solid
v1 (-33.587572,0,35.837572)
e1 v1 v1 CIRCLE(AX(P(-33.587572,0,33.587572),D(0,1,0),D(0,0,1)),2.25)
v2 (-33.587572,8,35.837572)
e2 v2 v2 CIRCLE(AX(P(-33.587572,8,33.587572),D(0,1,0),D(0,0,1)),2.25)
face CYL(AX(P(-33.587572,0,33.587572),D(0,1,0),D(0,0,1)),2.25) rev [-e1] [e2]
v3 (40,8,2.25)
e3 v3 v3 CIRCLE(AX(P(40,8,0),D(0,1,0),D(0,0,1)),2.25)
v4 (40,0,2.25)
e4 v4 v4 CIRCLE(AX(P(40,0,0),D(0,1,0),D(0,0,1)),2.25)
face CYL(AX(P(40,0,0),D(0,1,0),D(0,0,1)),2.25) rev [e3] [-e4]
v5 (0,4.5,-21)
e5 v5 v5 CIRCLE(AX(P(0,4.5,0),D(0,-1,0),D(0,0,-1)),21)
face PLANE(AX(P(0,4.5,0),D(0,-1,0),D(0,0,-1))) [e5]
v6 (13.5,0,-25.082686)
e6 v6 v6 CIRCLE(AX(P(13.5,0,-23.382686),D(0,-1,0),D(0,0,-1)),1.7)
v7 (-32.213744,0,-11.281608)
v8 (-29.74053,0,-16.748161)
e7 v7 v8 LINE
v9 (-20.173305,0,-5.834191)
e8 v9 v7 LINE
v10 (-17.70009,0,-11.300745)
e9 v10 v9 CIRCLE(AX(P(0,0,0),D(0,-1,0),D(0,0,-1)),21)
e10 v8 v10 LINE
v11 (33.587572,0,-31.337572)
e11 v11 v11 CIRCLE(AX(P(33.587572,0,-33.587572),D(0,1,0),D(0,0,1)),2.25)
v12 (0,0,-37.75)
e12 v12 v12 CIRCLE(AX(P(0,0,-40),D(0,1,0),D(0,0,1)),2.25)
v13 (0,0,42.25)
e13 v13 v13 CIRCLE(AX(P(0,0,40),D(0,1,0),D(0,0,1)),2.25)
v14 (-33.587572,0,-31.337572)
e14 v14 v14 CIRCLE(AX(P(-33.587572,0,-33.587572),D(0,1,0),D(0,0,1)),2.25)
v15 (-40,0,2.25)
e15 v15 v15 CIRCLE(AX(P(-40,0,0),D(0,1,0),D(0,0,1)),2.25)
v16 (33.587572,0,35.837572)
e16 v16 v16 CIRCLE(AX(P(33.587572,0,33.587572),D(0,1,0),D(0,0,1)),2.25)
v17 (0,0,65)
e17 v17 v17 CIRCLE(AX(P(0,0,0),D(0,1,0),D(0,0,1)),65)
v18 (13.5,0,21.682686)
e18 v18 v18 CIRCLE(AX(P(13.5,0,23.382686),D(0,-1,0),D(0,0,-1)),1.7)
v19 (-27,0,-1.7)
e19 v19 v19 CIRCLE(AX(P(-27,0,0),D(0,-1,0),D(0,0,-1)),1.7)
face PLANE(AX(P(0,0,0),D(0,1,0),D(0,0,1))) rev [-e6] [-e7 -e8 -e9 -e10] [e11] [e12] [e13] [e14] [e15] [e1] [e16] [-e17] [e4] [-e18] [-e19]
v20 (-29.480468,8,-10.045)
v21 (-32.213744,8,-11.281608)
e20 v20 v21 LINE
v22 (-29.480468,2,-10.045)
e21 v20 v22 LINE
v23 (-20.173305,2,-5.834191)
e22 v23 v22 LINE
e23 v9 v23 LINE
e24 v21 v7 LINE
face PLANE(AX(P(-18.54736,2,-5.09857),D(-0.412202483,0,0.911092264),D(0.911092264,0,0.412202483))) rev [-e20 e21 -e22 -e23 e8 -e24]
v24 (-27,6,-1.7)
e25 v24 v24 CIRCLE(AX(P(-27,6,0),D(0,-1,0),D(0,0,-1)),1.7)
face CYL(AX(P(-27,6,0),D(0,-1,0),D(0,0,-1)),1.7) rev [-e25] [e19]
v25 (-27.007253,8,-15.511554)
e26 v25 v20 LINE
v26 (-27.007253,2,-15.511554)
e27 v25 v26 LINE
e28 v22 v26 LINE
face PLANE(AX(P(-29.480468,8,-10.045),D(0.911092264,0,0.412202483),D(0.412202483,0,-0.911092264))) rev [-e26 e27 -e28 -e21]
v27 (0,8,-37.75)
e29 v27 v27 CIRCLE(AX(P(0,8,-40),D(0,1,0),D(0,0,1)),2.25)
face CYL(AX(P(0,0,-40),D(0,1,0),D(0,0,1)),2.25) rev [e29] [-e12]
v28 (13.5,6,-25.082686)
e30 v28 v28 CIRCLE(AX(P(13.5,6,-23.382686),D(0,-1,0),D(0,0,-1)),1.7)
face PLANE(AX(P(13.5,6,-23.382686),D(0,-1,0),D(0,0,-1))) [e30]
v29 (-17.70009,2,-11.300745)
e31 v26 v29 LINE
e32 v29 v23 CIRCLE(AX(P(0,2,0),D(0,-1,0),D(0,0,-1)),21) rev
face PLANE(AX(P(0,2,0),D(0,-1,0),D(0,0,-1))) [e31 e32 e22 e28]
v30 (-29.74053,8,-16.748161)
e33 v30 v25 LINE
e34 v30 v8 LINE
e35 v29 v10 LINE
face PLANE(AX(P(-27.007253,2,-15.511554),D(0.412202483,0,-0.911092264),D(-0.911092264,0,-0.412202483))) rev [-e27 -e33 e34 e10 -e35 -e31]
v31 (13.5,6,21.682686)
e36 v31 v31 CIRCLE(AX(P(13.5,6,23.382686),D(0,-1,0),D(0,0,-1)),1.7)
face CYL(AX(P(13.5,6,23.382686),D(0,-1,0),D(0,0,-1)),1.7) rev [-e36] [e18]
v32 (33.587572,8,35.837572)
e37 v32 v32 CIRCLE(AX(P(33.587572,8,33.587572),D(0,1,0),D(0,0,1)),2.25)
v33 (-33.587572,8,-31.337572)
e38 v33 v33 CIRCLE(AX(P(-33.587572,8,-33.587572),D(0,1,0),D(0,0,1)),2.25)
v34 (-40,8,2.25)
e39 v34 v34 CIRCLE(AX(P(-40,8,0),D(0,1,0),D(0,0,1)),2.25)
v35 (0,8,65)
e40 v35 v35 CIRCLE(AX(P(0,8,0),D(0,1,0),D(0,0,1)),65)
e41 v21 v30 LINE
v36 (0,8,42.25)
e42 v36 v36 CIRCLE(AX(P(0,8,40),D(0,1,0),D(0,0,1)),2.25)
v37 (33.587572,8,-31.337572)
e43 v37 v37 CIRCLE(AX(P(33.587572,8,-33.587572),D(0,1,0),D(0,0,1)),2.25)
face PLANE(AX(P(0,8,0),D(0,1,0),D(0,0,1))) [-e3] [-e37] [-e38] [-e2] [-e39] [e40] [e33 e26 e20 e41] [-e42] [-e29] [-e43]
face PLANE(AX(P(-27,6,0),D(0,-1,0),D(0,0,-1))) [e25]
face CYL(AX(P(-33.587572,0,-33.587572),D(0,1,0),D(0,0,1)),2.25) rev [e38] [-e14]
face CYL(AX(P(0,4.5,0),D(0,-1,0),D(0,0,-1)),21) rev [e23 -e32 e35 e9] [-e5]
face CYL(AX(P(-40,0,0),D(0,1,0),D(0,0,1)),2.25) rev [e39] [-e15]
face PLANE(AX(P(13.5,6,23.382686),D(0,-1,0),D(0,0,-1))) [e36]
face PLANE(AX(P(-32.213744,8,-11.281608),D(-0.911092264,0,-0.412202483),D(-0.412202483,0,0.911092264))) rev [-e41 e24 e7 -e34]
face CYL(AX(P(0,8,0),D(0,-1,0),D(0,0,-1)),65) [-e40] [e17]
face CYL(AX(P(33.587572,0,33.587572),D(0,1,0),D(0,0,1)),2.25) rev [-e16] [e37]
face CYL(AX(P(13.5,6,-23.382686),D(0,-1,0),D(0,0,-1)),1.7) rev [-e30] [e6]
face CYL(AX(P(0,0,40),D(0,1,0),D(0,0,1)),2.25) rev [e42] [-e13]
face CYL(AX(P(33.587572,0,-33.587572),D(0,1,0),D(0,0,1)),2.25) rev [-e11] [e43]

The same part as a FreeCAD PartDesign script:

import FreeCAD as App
import Part
import Sketcher

doc = App.newDocument("Part")
params = doc.addObject("Spreadsheet::Sheet", "Params")
for row, (alias, value) in enumerate([
    ("sketch1_diameter", "130 mm"),
    ("pad1_length", "8 mm"),
    ("sketch2_diameter", "42 mm"),
    ("pocket1_length", "4.5 mm"),
    ("sketch3_diameter", "4.5 mm"),
    ("sketch4_diameter", "4.5 mm"),
    ("sketch5_length", "6 mm"),
    ("sketch5_length2", "12 mm"),
    ("pocket4_length", "2 mm"),
    ("sketch6_diameter", "3.4 mm"),
    ("pocket5_length", "6 mm"),
    ("sketch7_length", "3 mm"),
    ("sketch7_length2", "6 mm"),
], start=1):
    params.set(f"A{row}", alias)
    params.set(f"B{row}", "=" + value)
    params.setAlias(f"B{row}", alias)

body = doc.addObject("PartDesign::Body", "Body")

sketch1 = body.newObject("Sketcher::SketchObject", "Sketch")
sketch1.AttachmentSupport = (doc.getObject("XZ_Plane"), [""])
sketch1.MapMode = "FlatFace"
sketch1.addGeometry(Part.Circle(App.Vector(0, 0, 0), App.Vector(0, 0, 1), 65), False)
sketch1.addConstraint(Sketcher.Constraint("Coincident", 0, 3, -1, 1))
sketch1.addConstraint(Sketcher.Constraint("Diameter", 0, 130.0))
sketch1.setExpression("Constraints[1]", "Params.sketch1_diameter")
pad1 = body.newObject("PartDesign::Pad", "Pad")
pad1.Profile = sketch1
pad1.setExpression("Length", "Params.pad1_length")
pad1.Reversed = True

sketch2 = body.newObject("Sketcher::SketchObject", "Sketch001")
sketch2.AttachmentSupport = (doc.getObject("XZ_Plane"), [""])
sketch2.MapMode = "FlatFace"
sketch2.addGeometry(Part.Circle(App.Vector(0, 0, 0), App.Vector(0, 0, 1), 21), False)
sketch2.addConstraint(Sketcher.Constraint("Coincident", 0, 3, -1, 1))
sketch2.addConstraint(Sketcher.Constraint("Diameter", 0, 42.0))
sketch2.setExpression("Constraints[1]", "Params.sketch2_diameter")
pocket1 = body.newObject("PartDesign::Pocket", "Pocket")
pocket1.Profile = sketch2
pocket1.setExpression("Length", "Params.pocket1_length")

sketch3 = body.newObject("Sketcher::SketchObject", "Sketch002")
sketch3.AttachmentSupport = (doc.getObject("XZ_Plane"), [""])
sketch3.MapMode = "FlatFace"
sketch3.AttachmentOffset = App.Placement(App.Vector(0, 0, -8), App.Rotation())
sketch3.addGeometry(Part.Circle(App.Vector(-40, 0, 0), App.Vector(0, 0, 1), 2.2), False)
sketch3.addGeometry(Part.Circle(App.Vector(0, -40, 0), App.Vector(0, 0, 1), 2.2), False)
sketch3.addGeometry(Part.Circle(App.Vector(40, 0, 0), App.Vector(0, 0, 1), 2.2), False)
sketch3.addGeometry(Part.Circle(App.Vector(0, 40, 0), App.Vector(0, 0, 1), 2.2), False)
sketch3.addConstraint(Sketcher.Constraint("Equal", 0, 1))
sketch3.addConstraint(Sketcher.Constraint("Equal", 1, 2))
sketch3.addConstraint(Sketcher.Constraint("Equal", 2, 3))
sketch3.addConstraint(Sketcher.Constraint("Symmetric", 0, 3, 2, 3, -1, 1))
sketch3.addConstraint(Sketcher.Constraint("Symmetric", 1, 3, 3, 3, -1, 1))
sketch3.addConstraint(Sketcher.Constraint("PointOnObject", 0, 3, -1))
sketch3.addConstraint(Sketcher.Constraint("PointOnObject", 1, 3, -2))
sketch3.addConstraint(Sketcher.Constraint("Diameter", 0, 4.5))
sketch3.addConstraint(Sketcher.Constraint("DistanceX", 0, 3, -1, 1, 40.0))
sketch3.addConstraint(Sketcher.Constraint("DistanceY", 1, 3, -1, 1, 40.0))
sketch3.setExpression("Constraints[7]", "Params.sketch3_diameter")
pocket2 = body.newObject("PartDesign::Pocket", "Pocket001")
pocket2.Profile = sketch3
pocket2.Type = "ThroughAll"
pocket2.Reversed = True

sketch4 = body.newObject("Sketcher::SketchObject", "Sketch003")
sketch4.AttachmentSupport = (doc.getObject("XZ_Plane"), [""])
sketch4.MapMode = "FlatFace"
sketch4.AttachmentOffset = App.Placement(App.Vector(0, 0, -8), App.Rotation())
sketch4.addGeometry(Part.Circle(App.Vector(-33.6, -33.6, 0), App.Vector(0, 0, 1), 2.2), False)
sketch4.addGeometry(Part.Circle(App.Vector(33.6, -33.6, 0), App.Vector(0, 0, 1), 2.2), False)
sketch4.addGeometry(Part.Circle(App.Vector(33.6, 33.6, 0), App.Vector(0, 0, 1), 2.2), False)
sketch4.addGeometry(Part.Circle(App.Vector(-33.6, 33.6, 0), App.Vector(0, 0, 1), 2.2), False)
sketch4.addConstraint(Sketcher.Constraint("Equal", 0, 1))
sketch4.addConstraint(Sketcher.Constraint("Equal", 1, 2))
sketch4.addConstraint(Sketcher.Constraint("Equal", 2, 3))
sketch4.addConstraint(Sketcher.Constraint("Symmetric", 0, 3, 2, 3, -1, 1))
sketch4.addConstraint(Sketcher.Constraint("Symmetric", 1, 3, 3, 3, -1, 1))
sketch4.addConstraint(Sketcher.Constraint("Symmetric", 0, 3, 1, 3, -2))
sketch4.addConstraint(Sketcher.Constraint("Diameter", 0, 4.5))
sketch4.addConstraint(Sketcher.Constraint("DistanceX", 0, 3, -1, 1, 33.587572))
sketch4.addConstraint(Sketcher.Constraint("DistanceY", 0, 3, -1, 1, 33.587572))
sketch4.setExpression("Constraints[6]", "Params.sketch4_diameter")
pocket3 = body.newObject("PartDesign::Pocket", "Pocket002")
pocket3.Profile = sketch4
pocket3.Type = "ThroughAll"
pocket3.Reversed = True

sketch5 = body.newObject("Sketcher::SketchObject", "Sketch004")
sketch5.AttachmentSupport = (doc.getObject("XZ_Plane"), [""])
sketch5.MapMode = "FlatFace"
sketch5.addGeometry(Part.LineSegment(App.Vector(-29, -10, 0), App.Vector(-27, -16, 0)), False)
sketch5.addGeometry(Part.LineSegment(App.Vector(-27, -16, 0), App.Vector(-16, -11, 0)), False)
sketch5.addGeometry(Part.LineSegment(App.Vector(-16, -11, 0), App.Vector(-19, -5, 0)), False)
sketch5.addGeometry(Part.LineSegment(App.Vector(-19, -5, 0), App.Vector(-29, -10, 0)), False)
sketch5.addConstraint(Sketcher.Constraint("Coincident", 0, 2, 1, 1))
sketch5.addConstraint(Sketcher.Constraint("Coincident", 1, 2, 2, 1))
sketch5.addConstraint(Sketcher.Constraint("Coincident", 2, 2, 3, 1))
sketch5.addConstraint(Sketcher.Constraint("Coincident", 3, 2, 0, 1))
sketch5.addConstraint(Sketcher.Constraint("Perpendicular", 0, 1))
sketch5.addConstraint(Sketcher.Constraint("Perpendicular", 1, 2))
sketch5.addConstraint(Sketcher.Constraint("Perpendicular", 2, 3))
sketch5.addConstraint(Sketcher.Constraint("Distance", 0, 6.0))
sketch5.addConstraint(Sketcher.Constraint("Distance", 1, 12.0))
sketch5.addConstraint(Sketcher.Constraint("DistanceY", 3, 2, -1, 1, 10.045))
sketch5.addConstraint(Sketcher.Constraint("DistanceX", 2, 2, -1, 1, 18.54736))
sketch5.addConstraint(Sketcher.Constraint("DistanceY", 2, 2, -1, 1, 5.09857))
sketch5.setExpression("Constraints[7]", "Params.sketch5_length")
sketch5.setExpression("Constraints[8]", "Params.sketch5_length2")
pocket4 = body.newObject("PartDesign::Pocket", "Pocket003")
pocket4.Profile = sketch5
pocket4.setExpression("Length", "Params.pocket4_length")

sketch6 = body.newObject("Sketcher::SketchObject", "Sketch005")
sketch6.AttachmentSupport = (doc.getObject("XZ_Plane"), [""])
sketch6.MapMode = "FlatFace"
sketch6.addGeometry(Part.Circle(App.Vector(-27, 0, 0), App.Vector(0, 0, 1), 1.7), False)
sketch6.addGeometry(Part.Circle(App.Vector(13.5, 23.4, 0), App.Vector(0, 0, 1), 1.7), False)
sketch6.addGeometry(Part.Circle(App.Vector(13.5, -23.4, 0), App.Vector(0, 0, 1), 1.7), False)
sketch6.addConstraint(Sketcher.Constraint("Equal", 0, 1))
sketch6.addConstraint(Sketcher.Constraint("Equal", 1, 2))
sketch6.addConstraint(Sketcher.Constraint("Symmetric", 1, 3, 2, 3, -1))
sketch6.addConstraint(Sketcher.Constraint("PointOnObject", 0, 3, -1))
sketch6.addConstraint(Sketcher.Constraint("Diameter", 0, 3.4))
sketch6.addConstraint(Sketcher.Constraint("DistanceX", 0, 3, -1, 1, 27.0))
sketch6.addConstraint(Sketcher.Constraint("DistanceX", -1, 1, 1, 3, 13.5))
sketch6.addConstraint(Sketcher.Constraint("DistanceY", 2, 3, 1, 3, 46.765372))
sketch6.setExpression("Constraints[4]", "Params.sketch6_diameter")
pocket5 = body.newObject("PartDesign::Pocket", "Pocket004")
pocket5.Profile = sketch6
pocket5.setExpression("Length", "Params.pocket5_length")

sketch7 = body.newObject("Sketcher::SketchObject", "Sketch006")
sketch7.AttachmentSupport = (doc.getObject("XZ_Plane"), [""])
sketch7.MapMode = "FlatFace"
sketch7.addGeometry(Part.LineSegment(App.Vector(-29.5, -10, 0), App.Vector(-32.2, -11.3, 0)), False)
sketch7.addGeometry(Part.LineSegment(App.Vector(-32.2, -11.3, 0), App.Vector(-29.7, -16.7, 0)), False)
sketch7.addGeometry(Part.LineSegment(App.Vector(-29.7, -16.7, 0), App.Vector(-27, -15.5, 0)), False)
sketch7.addGeometry(Part.LineSegment(App.Vector(-27, -15.5, 0), App.Vector(-29.5, -10, 0)), False)
sketch7.addConstraint(Sketcher.Constraint("Coincident", 0, 2, 1, 1))
sketch7.addConstraint(Sketcher.Constraint("Coincident", 1, 2, 2, 1))
sketch7.addConstraint(Sketcher.Constraint("Coincident", 2, 2, 3, 1))
sketch7.addConstraint(Sketcher.Constraint("Coincident", 3, 2, 0, 1))
sketch7.addConstraint(Sketcher.Constraint("Perpendicular", 0, 1))
sketch7.addConstraint(Sketcher.Constraint("Perpendicular", 1, 2))
sketch7.addConstraint(Sketcher.Constraint("Perpendicular", 2, 3))
sketch7.addConstraint(Sketcher.Constraint("Distance", 0, 3.0))
sketch7.addConstraint(Sketcher.Constraint("Distance", 1, 6.0))
sketch7.addConstraint(Sketcher.Constraint("DistanceY", 3, 2, -1, 1, 10.045))
sketch7.addConstraint(Sketcher.Constraint("DistanceX", 1, 2, -1, 1, 29.74053))
sketch7.addConstraint(Sketcher.Constraint("DistanceY", 1, 2, -1, 1, 16.748161))
sketch7.setExpression("Constraints[7]", "Params.sketch7_length")
sketch7.setExpression("Constraints[8]", "Params.sketch7_length2")
pocket6 = body.newObject("PartDesign::Pocket", "Pocket005")
pocket6.Profile = sketch7
pocket6.Type = "ThroughAll"

doc.recompute()
